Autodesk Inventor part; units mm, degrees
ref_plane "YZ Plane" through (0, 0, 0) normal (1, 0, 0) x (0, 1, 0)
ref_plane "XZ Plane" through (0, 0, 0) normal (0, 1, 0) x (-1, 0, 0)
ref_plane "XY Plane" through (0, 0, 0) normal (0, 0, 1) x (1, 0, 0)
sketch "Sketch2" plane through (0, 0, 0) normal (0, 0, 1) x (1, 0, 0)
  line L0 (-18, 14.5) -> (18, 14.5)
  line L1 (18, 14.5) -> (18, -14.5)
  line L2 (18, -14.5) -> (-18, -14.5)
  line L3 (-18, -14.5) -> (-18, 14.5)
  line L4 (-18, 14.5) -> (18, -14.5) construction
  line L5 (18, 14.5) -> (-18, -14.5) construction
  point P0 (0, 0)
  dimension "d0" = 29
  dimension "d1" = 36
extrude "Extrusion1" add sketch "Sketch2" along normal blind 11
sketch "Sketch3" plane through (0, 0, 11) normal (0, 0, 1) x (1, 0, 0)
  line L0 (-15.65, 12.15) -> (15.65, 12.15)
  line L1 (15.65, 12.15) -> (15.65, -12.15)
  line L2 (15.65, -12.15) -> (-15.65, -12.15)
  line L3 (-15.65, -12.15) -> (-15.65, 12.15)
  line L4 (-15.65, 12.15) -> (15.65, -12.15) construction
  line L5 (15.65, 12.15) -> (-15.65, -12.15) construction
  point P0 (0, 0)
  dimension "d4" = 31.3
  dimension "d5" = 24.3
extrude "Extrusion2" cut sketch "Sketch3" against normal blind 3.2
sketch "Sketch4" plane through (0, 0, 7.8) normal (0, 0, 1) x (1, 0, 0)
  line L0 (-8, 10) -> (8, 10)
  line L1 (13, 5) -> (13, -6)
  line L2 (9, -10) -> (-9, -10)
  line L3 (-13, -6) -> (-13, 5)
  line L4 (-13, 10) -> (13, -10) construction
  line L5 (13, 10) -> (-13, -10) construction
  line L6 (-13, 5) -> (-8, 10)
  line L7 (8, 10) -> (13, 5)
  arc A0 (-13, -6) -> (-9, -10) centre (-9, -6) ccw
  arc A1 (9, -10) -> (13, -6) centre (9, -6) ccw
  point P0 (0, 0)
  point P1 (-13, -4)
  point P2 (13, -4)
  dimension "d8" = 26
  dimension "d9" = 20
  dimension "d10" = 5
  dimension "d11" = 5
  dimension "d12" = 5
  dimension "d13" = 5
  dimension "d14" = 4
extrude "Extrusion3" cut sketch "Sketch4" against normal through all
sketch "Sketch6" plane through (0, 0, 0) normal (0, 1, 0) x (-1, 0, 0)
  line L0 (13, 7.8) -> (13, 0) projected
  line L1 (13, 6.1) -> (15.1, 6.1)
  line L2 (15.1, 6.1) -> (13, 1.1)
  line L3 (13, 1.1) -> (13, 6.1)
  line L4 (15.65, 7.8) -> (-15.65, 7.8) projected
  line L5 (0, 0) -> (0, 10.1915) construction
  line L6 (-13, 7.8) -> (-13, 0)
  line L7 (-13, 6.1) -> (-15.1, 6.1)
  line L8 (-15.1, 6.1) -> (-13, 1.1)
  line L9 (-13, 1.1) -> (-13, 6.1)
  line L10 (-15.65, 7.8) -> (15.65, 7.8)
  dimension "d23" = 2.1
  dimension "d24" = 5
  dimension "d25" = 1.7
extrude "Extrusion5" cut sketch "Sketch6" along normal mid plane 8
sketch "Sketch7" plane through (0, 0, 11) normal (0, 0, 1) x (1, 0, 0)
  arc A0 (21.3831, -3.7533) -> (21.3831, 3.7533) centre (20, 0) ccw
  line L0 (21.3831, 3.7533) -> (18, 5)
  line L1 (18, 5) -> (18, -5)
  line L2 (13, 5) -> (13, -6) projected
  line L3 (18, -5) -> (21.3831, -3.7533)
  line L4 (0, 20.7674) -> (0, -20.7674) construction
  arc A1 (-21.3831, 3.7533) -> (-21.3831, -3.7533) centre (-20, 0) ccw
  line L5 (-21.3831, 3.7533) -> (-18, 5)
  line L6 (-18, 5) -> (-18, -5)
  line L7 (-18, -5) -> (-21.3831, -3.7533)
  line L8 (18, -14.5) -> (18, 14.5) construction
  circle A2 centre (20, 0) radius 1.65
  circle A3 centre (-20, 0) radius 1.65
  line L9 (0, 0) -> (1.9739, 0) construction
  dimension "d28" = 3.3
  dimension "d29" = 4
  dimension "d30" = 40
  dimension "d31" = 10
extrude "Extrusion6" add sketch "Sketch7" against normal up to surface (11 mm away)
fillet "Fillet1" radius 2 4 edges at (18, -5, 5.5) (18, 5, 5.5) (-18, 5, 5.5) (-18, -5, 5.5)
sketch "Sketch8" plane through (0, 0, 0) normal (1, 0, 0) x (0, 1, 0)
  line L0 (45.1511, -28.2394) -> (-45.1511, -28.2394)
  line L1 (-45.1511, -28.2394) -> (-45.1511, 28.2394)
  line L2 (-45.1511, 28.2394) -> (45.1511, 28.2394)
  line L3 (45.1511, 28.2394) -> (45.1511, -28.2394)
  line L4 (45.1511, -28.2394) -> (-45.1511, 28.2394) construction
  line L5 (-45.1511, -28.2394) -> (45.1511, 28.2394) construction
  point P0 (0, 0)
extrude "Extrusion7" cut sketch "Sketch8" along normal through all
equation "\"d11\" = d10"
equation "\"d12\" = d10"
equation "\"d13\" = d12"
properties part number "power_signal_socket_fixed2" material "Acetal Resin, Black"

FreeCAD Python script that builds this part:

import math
import FreeCAD as App
import Part
import Sketcher

V = App.Vector


def edges_at(feature, points):
    """Names of the edges that pass closest to the given points."""
    edges = feature.Shape.Edges
    near = lambda p: min(range(len(edges)), key=lambda i: edges[i].distToShape(Part.Vertex(*p))[0])
    return sorted({f"Edge{near(p) + 1}" for p in points})

doc = App.newDocument("Part")
params = doc.addObject("Spreadsheet::Sheet", "Params")
for row, (alias, value) in enumerate([
    ("sketch1_width", "36 mm"),
    ("sketch1_height", "29 mm"),
    ("pad1_length", "11 mm"),
    ("sketch2_width", "31.3 mm"),
    ("sketch2_height", "24.3 mm"),
    ("pocket1_length", "3.2 mm"),
    ("sketch3_radius", "4 mm"),
    ("sketch4_height", "5 mm"),
    ("sketch4_width", "2.1 mm"),
    ("pocket3_length", "8 mm"),
    ("sketch5_radius", "4 mm"),
    ("sketch5_diameter", "3.3 mm"),
    ("sketch5_height", "10 mm"),
    ("pad2_length", "11 mm"),
    ("fillet_radius", "2 mm"),
], start=1):
    params.set(f"A{row}", alias)
    params.set(f"B{row}", "=" + value)
    params.setAlias(f"B{row}", alias)

body = doc.addObject("PartDesign::Body", "Body")

sketch1 = body.newObject("Sketcher::SketchObject", "Sketch")
sketch1.AttachmentSupport = (doc.getObject("XY_Plane"), [""])
sketch1.MapMode = "FlatFace"
sketch1.addGeometry(Part.LineSegment(V(18, 14.5, 0), V(-18, 14.5, 0)), False)
sketch1.addGeometry(Part.LineSegment(V(-18, 14.5, 0), V(-18, -14.5, 0)), False)
sketch1.addGeometry(Part.LineSegment(V(-18, -14.5, 0), V(18, -14.5, 0)), False)
sketch1.addGeometry(Part.LineSegment(V(18, -14.5, 0), V(18, 14.5, 0)), False)
sketch1.addConstraint(Sketcher.Constraint("Coincident", 0, 2, 1, 1))
sketch1.addConstraint(Sketcher.Constraint("Coincident", 1, 2, 2, 1))
sketch1.addConstraint(Sketcher.Constraint("Coincident", 2, 2, 3, 1))
sketch1.addConstraint(Sketcher.Constraint("Coincident", 3, 2, 0, 1))
sketch1.addConstraint(Sketcher.Constraint("Horizontal", 0))
sketch1.addConstraint(Sketcher.Constraint("Vertical", 1))
sketch1.addConstraint(Sketcher.Constraint("Horizontal", 2))
sketch1.addConstraint(Sketcher.Constraint("Vertical", 3))
sketch1.addConstraint(Sketcher.Constraint("Symmetric", 0, 2, 2, 2, -1, 1))
sketch1.addConstraint(Sketcher.Constraint("DistanceX", 0, 2, 0, 1, 36.0))
sketch1.addConstraint(Sketcher.Constraint("DistanceY", 1, 2, 1, 1, 29.0))
sketch1.setExpression("Constraints[9]", "Params.sketch1_width")
sketch1.setExpression("Constraints[10]", "Params.sketch1_height")
pad1 = body.newObject("PartDesign::Pad", "Pad")
pad1.Profile = sketch1
pad1.setExpression("Length", "Params.pad1_length")

sketch2 = body.newObject("Sketcher::SketchObject", "Sketch001")
sketch2.AttachmentSupport = (doc.getObject("XY_Plane"), [""])
sketch2.MapMode = "FlatFace"
sketch2.AttachmentOffset = App.Placement(V(0, 0, 11), App.Rotation())
sketch2.addGeometry(Part.LineSegment(V(15.65, 12.15, 0), V(-15.65, 12.15, 0)), False)
sketch2.addGeometry(Part.LineSegment(V(-15.65, 12.15, 0), V(-15.65, -12.15, 0)), False)
sketch2.addGeometry(Part.LineSegment(V(-15.65, -12.15, 0), V(15.65, -12.15, 0)), False)
sketch2.addGeometry(Part.LineSegment(V(15.65, -12.15, 0), V(15.65, 12.15, 0)), False)
sketch2.addConstraint(Sketcher.Constraint("Coincident", 0, 2, 1, 1))
sketch2.addConstraint(Sketcher.Constraint("Coincident", 1, 2, 2, 1))
sketch2.addConstraint(Sketcher.Constraint("Coincident", 2, 2, 3, 1))
sketch2.addConstraint(Sketcher.Constraint("Coincident", 3, 2, 0, 1))
sketch2.addConstraint(Sketcher.Constraint("Horizontal", 0))
sketch2.addConstraint(Sketcher.Constraint("Vertical", 1))
sketch2.addConstraint(Sketcher.Constraint("Horizontal", 2))
sketch2.addConstraint(Sketcher.Constraint("Vertical", 3))
sketch2.addConstraint(Sketcher.Constraint("Symmetric", 0, 2, 2, 2, -1, 1))
sketch2.addConstraint(Sketcher.Constraint("DistanceX", 0, 2, 0, 1, 31.3))
sketch2.addConstraint(Sketcher.Constraint("DistanceY", 1, 2, 1, 1, 24.3))
sketch2.setExpression("Constraints[9]", "Params.sketch2_width")
sketch2.setExpression("Constraints[10]", "Params.sketch2_height")
pocket1 = body.newObject("PartDesign::Pocket", "Pocket")
pocket1.Profile = sketch2
pocket1.setExpression("Length", "Params.pocket1_length")

sketch3 = body.newObject("Sketcher::SketchObject", "Sketch002")
sketch3.AttachmentSupport = (doc.getObject("XY_Plane"), [""])
sketch3.MapMode = "FlatFace"
sketch3.AttachmentOffset = App.Placement(V(0, 0, 7.8), App.Rotation())
sketch3.addGeometry(Part.LineSegment(V(8, 10, 0), V(-8, 10, 0)), False)
sketch3.addGeometry(Part.LineSegment(V(-8, 10, 0), V(-13, 5, 0)), False)
sketch3.addGeometry(Part.LineSegment(V(-13, 5, 0), V(-13, -6, 0)), False)
sketch3.addGeometry(Part.ArcOfCircle(Part.Circle(V(-9, -6, 0), V(0, 0, 1), 4), math.radians(180), math.radians(270)), False)
sketch3.addGeometry(Part.LineSegment(V(-9, -10, 0), V(9, -10, 0)), False)
sketch3.addGeometry(Part.ArcOfCircle(Part.Circle(V(9, -6, 0), V(0, 0, 1), 4), math.radians(-90), math.radians(0)), False)
sketch3.addGeometry(Part.LineSegment(V(13, -6, 0), V(13, 5, 0)), False)
sketch3.addGeometry(Part.LineSegment(V(13, 5, 0), V(8, 10, 0)), False)
sketch3.addConstraint(Sketcher.Constraint("Coincident", 0, 2, 1, 1))
sketch3.addConstraint(Sketcher.Constraint("Coincident", 1, 2, 2, 1))
sketch3.addConstraint(Sketcher.Constraint("Tangent", 2, 2, 3, 1))
sketch3.addConstraint(Sketcher.Constraint("Tangent", 3, 2, 4, 1))
sketch3.addConstraint(Sketcher.Constraint("Tangent", 4, 2, 5, 1))
sketch3.addConstraint(Sketcher.Constraint("Tangent", 5, 2, 6, 1))
sketch3.addConstraint(Sketcher.Constraint("Coincident", 6, 2, 7, 1))
sketch3.addConstraint(Sketcher.Constraint("Coincident", 7, 2, 0, 1))
sketch3.addConstraint(Sketcher.Constraint("Horizontal", 0))
sketch3.addConstraint(Sketcher.Constraint("Vertical", 2))
sketch3.addConstraint(Sketcher.Constraint("Horizontal", 4))
sketch3.addConstraint(Sketcher.Constraint("Vertical", 6))
sketch3.addConstraint(Sketcher.Constraint("Equal", 3, 5))
sketch3.addConstraint(Sketcher.Constraint("Symmetric", 1, 2, 6, 2, -2))
sketch3.addConstraint(Sketcher.Constraint("Perpendicular", 1, 7))
sketch3.addConstraint(Sketcher.Constraint("Equal", 1, 7))
sketch3.addConstraint(Sketcher.Constraint("Radius", 3, 4.0))
sketch3.addConstraint(Sketcher.Constraint("DistanceY", -1, 1, 1, 2, 5.0))
sketch3.addConstraint(Sketcher.Constraint("DistanceX", 1, 2, 0, 2, 5.0))
sketch3.addConstraint(Sketcher.Constraint("DistanceY", 3, 2, 0, 2, 20.0))
sketch3.addConstraint(Sketcher.Constraint("DistanceX", 2, 2, 5, 2, 26.0))
sketch3.setExpression("Constraints[16]", "Params.sketch3_radius")
pocket2 = body.newObject("PartDesign::Pocket", "Pocket001")
pocket2.Profile = sketch3
pocket2.Type = "ThroughAll"

sketch4 = body.newObject("Sketcher::SketchObject", "Sketch003")
sketch4.AttachmentSupport = (doc.getObject("XZ_Plane"), [""])
sketch4.MapMode = "FlatFace"
sketch4.addGeometry(Part.LineSegment(V(-15.1, 6.1, 0), V(-13, 6.1, 0)), False)
sketch4.addGeometry(Part.LineSegment(V(-13, 6.1, 0), V(-13, 1.1, 0)), False)
sketch4.addGeometry(Part.LineSegment(V(-13, 1.1, 0), V(-15.1, 6.1, 0)), False)
sketch4.addGeometry(Part.LineSegment(V(13, 1.1, 0), V(13, 6.1, 0)), False)
sketch4.addGeometry(Part.LineSegment(V(13, 6.1, 0), V(15.1, 6.1, 0)), False)
sketch4.addGeometry(Part.LineSegment(V(15.1, 6.1, 0), V(13, 1.1, 0)), False)
sketch4.addConstraint(Sketcher.Constraint("Coincident", 0, 2, 1, 1))
sketch4.addConstraint(Sketcher.Constraint("Coincident", 1, 2, 2, 1))
sketch4.addConstraint(Sketcher.Constraint("Coincident", 2, 2, 0, 1))
sketch4.addConstraint(Sketcher.Constraint("Coincident", 3, 2, 4, 1))
sketch4.addConstraint(Sketcher.Constraint("Coincident", 4, 2, 5, 1))
sketch4.addConstraint(Sketcher.Constraint("Coincident", 5, 2, 3, 1))
sketch4.addConstraint(Sketcher.Constraint("Horizontal", 0))
sketch4.addConstraint(Sketcher.Constraint("Vertical", 1))
sketch4.addConstraint(Sketcher.Constraint("Vertical", 3))
sketch4.addConstraint(Sketcher.Constraint("Horizontal", 4))
sketch4.addConstraint(Sketcher.Constraint("Symmetric", 0, 2, 3, 2, -2))
sketch4.addConstraint(Sketcher.Constraint("Horizontal", 1, 2, 5, 2))
sketch4.addConstraint(Sketcher.Constraint("Equal", 0, 4))
sketch4.addConstraint(Sketcher.Constraint("DistanceY", 1, 2, 1, 1, 5.0))
sketch4.addConstraint(Sketcher.Constraint("DistanceX", 0, 1, 0, 2, 2.1))
sketch4.addConstraint(Sketcher.Constraint("DistanceX", 0, 2, -1, 1, 13.0))
sketch4.addConstraint(Sketcher.Constraint("DistanceY", -1, 1, 0, 2, 6.1))
sketch4.setExpression("Constraints[13]", "Params.sketch4_height")
sketch4.setExpression("Constraints[14]", "Params.sketch4_width")
pocket3 = body.newObject("PartDesign::Pocket", "Pocket002")
pocket3.Profile = sketch4
pocket3.setExpression("Length", "Params.pocket3_length")
pocket3.Midplane = True

sketch5 = body.newObject("Sketcher::SketchObject", "Sketch004")
sketch5.AttachmentSupport = (doc.getObject("XY_Plane"), [""])
sketch5.MapMode = "FlatFace"
sketch5.AttachmentOffset = App.Placement(V(0, 0, 11), App.Rotation())
sketch5.addGeometry(Part.LineSegment(V(18, -5, 0), V(21.3831, -3.7533, 0)), False)
sketch5.addGeometry(Part.ArcOfCircle(Part.Circle(V(20, 0, 0), V(0, 0, 1), 4.000028), math.radians(-69.771038), math.radians(69.771038)), False)
sketch5.addGeometry(Part.LineSegment(V(21.3831, 3.7533, 0), V(18, 5, 0)), False)
sketch5.addGeometry(Part.LineSegment(V(18, 5, 0), V(18, -5, 0)), False)
sketch5.addGeometry(Part.Circle(V(20, 0, 0), V(0, 0, 1), 1.65), False)
sketch5.addGeometry(Part.LineSegment(V(-18, 5, 0), V(-21.3831, 3.7533, 0)), False)
sketch5.addGeometry(Part.ArcOfCircle(Part.Circle(V(-20, 0, 0), V(0, 0, 1), 4.000028), math.radians(110.228962), math.radians(249.771038)), False)
sketch5.addGeometry(Part.LineSegment(V(-21.3831, -3.7533, 0), V(-18, -5, 0)), False)
sketch5.addGeometry(Part.LineSegment(V(-18, -5, 0), V(-18, 5, 0)), False)
sketch5.addGeometry(Part.Circle(V(-20, 0, 0), V(0, 0, 1), 1.65), False)
sketch5.addConstraint(Sketcher.Constraint("Tangent", 0, 2, 1, 1))
sketch5.addConstraint(Sketcher.Constraint("Tangent", 1, 2, 2, 1))
sketch5.addConstraint(Sketcher.Constraint("Coincident", 2, 2, 3, 1))
sketch5.addConstraint(Sketcher.Constraint("Coincident", 3, 2, 0, 1))
sketch5.addConstraint(Sketcher.Constraint("Tangent", 5, 2, 6, 1))
sketch5.addConstraint(Sketcher.Constraint("Tangent", 6, 2, 7, 1))
sketch5.addConstraint(Sketcher.Constraint("Coincident", 7, 2, 8, 1))
sketch5.addConstraint(Sketcher.Constraint("Coincident", 8, 2, 5, 1))
sketch5.addConstraint(Sketcher.Constraint("Vertical", 3))
sketch5.addConstraint(Sketcher.Constraint("Vertical", 8))
sketch5.addConstraint(Sketcher.Constraint("Coincident", 4, 3, 1, 3))
sketch5.addConstraint(Sketcher.Constraint("Coincident", 9, 3, 6, 3))
sketch5.addConstraint(Sketcher.Constraint("Equal", 1, 6))
sketch5.addConstraint(Sketcher.Constraint("Equal", 4, 9))
sketch5.addConstraint(Sketcher.Constraint("Symmetric", 1, 3, 6, 3, -1, 1))
sketch5.addConstraint(Sketcher.Constraint("Symmetric", 2, 2, 7, 2, -1, 1))
sketch5.addConstraint(Sketcher.Constraint("Symmetric", 1, 2, 5, 2, -2))
sketch5.addConstraint(Sketcher.Constraint("Parallel", 0, 5))
sketch5.addConstraint(Sketcher.Constraint("Radius", 1, 4.0))
sketch5.addConstraint(Sketcher.Constraint("Diameter", 4, 3.3))
sketch5.addConstraint(Sketcher.Constraint("DistanceY", 3, 2, 3, 1, 10.0))
sketch5.addConstraint(Sketcher.Constraint("DistanceX", 6, 3, 1, 3, 40.0))
sketch5.addConstraint(Sketcher.Constraint("DistanceX", -1, 1, 2, 2, 18.0))
sketch5.setExpression("Constraints[18]", "Params.sketch5_radius")
sketch5.setExpression("Constraints[19]", "Params.sketch5_diameter")
sketch5.setExpression("Constraints[20]", "Params.sketch5_height")
pad2 = body.newObject("PartDesign::Pad", "Pad001")
pad2.Profile = sketch5
pad2.setExpression("Length", "Params.pad2_length")
pad2.Reversed = True
doc.recompute()

fillet = body.newObject("PartDesign::Fillet", "Fillet")
fillet.Base = (pad2, edges_at(pad2, [
    (18, -5, 5.5),
    (18, 5, 5.5),
    (-18, 5, 5.5),
    (-18, -5, 5.5),
]))
fillet.setExpression("Radius", "Params.fillet_radius")

sketch6 = body.newObject("Sketcher::SketchObject", "Sketch005")
sketch6.AttachmentSupport = (doc.getObject("YZ_Plane"), [""])
sketch6.MapMode = "FlatFace"
sketch6.addGeometry(Part.LineSegment(V(-45.1511, -28.2394, 0), V(45.1511, -28.2394, 0)), False)
sketch6.addGeometry(Part.LineSegment(V(45.1511, -28.2394, 0), V(45.1511, 28.2394, 0)), False)
sketch6.addGeometry(Part.LineSegment(V(45.1511, 28.2394, 0), V(-45.1511, 28.2394, 0)), False)
sketch6.addGeometry(Part.LineSegment(V(-45.1511, 28.2394, 0), V(-45.1511, -28.2394, 0)), False)
sketch6.addConstraint(Sketcher.Constraint("Coincident", 0, 2, 1, 1))
sketch6.addConstraint(Sketcher.Constraint("Coincident", 1, 2, 2, 1))
sketch6.addConstraint(Sketcher.Constraint("Coincident", 2, 2, 3, 1))
sketch6.addConstraint(Sketcher.Constraint("Coincident", 3, 2, 0, 1))
sketch6.addConstraint(Sketcher.Constraint("Horizontal", 0))
sketch6.addConstraint(Sketcher.Constraint("Vertical", 1))
sketch6.addConstraint(Sketcher.Constraint("Horizontal", 2))
sketch6.addConstraint(Sketcher.Constraint("Vertical", 3))
sketch6.addConstraint(Sketcher.Constraint("Symmetric", 0, 2, 2, 2, -1, 1))
sketch6.addConstraint(Sketcher.Constraint("DistanceX", 0, 1, 0, 2, 90.3022))
sketch6.addConstraint(Sketcher.Constraint("DistanceY", 1, 1, 1, 2, 56.4788))
pocket4 = body.newObject("PartDesign::Pocket", "Pocket003")
pocket4.Profile = sketch6
pocket4.Type = "ThroughAll"
pocket4.Reversed = True

doc.recompute()
